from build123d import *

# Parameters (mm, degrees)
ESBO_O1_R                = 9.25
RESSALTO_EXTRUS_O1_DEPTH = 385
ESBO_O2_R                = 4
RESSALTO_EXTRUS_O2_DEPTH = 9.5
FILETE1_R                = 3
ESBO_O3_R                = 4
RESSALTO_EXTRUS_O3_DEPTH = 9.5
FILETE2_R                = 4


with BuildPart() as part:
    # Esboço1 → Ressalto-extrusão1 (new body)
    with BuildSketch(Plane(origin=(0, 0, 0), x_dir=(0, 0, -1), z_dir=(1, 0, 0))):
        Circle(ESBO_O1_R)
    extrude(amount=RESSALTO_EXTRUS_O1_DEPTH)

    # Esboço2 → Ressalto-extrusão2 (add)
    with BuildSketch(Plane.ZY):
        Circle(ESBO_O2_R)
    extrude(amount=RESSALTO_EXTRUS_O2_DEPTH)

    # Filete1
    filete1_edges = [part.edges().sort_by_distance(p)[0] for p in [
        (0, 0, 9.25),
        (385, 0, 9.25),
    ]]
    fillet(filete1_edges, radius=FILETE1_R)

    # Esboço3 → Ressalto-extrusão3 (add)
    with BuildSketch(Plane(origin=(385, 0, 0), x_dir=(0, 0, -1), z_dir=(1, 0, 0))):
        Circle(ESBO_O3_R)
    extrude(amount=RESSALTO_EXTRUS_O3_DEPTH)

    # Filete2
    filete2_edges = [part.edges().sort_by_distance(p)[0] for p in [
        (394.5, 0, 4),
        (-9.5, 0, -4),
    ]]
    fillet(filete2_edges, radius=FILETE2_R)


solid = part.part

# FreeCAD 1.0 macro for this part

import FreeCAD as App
import Part
import Sketcher

V = App.Vector


def edges_at(feature, points):
    """Names of the edges that pass closest to the given points."""
    edges = feature.Shape.Edges
    near = lambda p: min(range(len(edges)), key=lambda i: edges[i].distToShape(Part.Vertex(*p))[0])
    return sorted({f"Edge{near(p) + 1}" for p in points})

doc = App.newDocument("Part")
body = doc.addObject("PartDesign::Body", "Body")

sketch1 = body.newObject("Sketcher::SketchObject", "Sketch")
sketch1.AttachmentSupport = (doc.getObject("YZ_Plane"), [""])
sketch1.MapMode = "FlatFace"
sketch1.addGeometry(Part.Circle(V(0, 0, 0), V(0, 0, 1), 9.25), False)
sketch1.addConstraint([
    Sketcher.Constraint("Coincident", 0, 3, -1, 1),
    Sketcher.Constraint("Diameter", 0, 18.5),
])
pad1 = body.newObject("PartDesign::Pad", "Pad")
pad1.Profile = sketch1
pad1.Length = 385

sketch2 = body.newObject("Sketcher::SketchObject", "Sketch001")
sketch2.AttachmentSupport = (doc.getObject("YZ_Plane"), [""])
sketch2.MapMode = "FlatFace"
sketch2.addGeometry(Part.Circle(V(0, 0, 0), V(0, 0, 1), 4), False)
sketch2.addConstraint([
    Sketcher.Constraint("Coincident", 0, 3, -1, 1),
    Sketcher.Constraint("Diameter", 0, 8.0),
])
pad2 = body.newObject("PartDesign::Pad", "Pad001")
pad2.Profile = sketch2
pad2.Length = 9.5
pad2.Reversed = True
doc.recompute()

fillet = body.newObject("PartDesign::Fillet", "Fillet")
fillet.Base = (pad2, edges_at(pad2, [(0, 0, 9.25), (385, 0, 9.25)]))
fillet.Radius = 3

sketch3 = body.newObject("Sketcher::SketchObject", "Sketch002")
sketch3.AttachmentSupport = (doc.getObject("YZ_Plane"), [""])
sketch3.MapMode = "FlatFace"
sketch3.AttachmentOffset = App.Placement(V(0, 0, 385), App.Rotation())
sketch3.addGeometry(Part.Circle(V(0, 0, 0), V(0, 0, 1), 4), False)
sketch3.addConstraint([
    Sketcher.Constraint("Coincident", 0, 3, -1, 1),
    Sketcher.Constraint("Diameter", 0, 8.0),
])
pad3 = body.newObject("PartDesign::Pad", "Pad002")
pad3.Profile = sketch3
pad3.Length = 9.5
doc.recompute()

fillet2 = body.newObject("PartDesign::Fillet", "Fillet001")
fillet2.Base = (pad3, edges_at(pad3, [(394.5, 0, 4), (-9.5, 0, -4)]))
fillet2.Radius = 4

doc.recompute()
